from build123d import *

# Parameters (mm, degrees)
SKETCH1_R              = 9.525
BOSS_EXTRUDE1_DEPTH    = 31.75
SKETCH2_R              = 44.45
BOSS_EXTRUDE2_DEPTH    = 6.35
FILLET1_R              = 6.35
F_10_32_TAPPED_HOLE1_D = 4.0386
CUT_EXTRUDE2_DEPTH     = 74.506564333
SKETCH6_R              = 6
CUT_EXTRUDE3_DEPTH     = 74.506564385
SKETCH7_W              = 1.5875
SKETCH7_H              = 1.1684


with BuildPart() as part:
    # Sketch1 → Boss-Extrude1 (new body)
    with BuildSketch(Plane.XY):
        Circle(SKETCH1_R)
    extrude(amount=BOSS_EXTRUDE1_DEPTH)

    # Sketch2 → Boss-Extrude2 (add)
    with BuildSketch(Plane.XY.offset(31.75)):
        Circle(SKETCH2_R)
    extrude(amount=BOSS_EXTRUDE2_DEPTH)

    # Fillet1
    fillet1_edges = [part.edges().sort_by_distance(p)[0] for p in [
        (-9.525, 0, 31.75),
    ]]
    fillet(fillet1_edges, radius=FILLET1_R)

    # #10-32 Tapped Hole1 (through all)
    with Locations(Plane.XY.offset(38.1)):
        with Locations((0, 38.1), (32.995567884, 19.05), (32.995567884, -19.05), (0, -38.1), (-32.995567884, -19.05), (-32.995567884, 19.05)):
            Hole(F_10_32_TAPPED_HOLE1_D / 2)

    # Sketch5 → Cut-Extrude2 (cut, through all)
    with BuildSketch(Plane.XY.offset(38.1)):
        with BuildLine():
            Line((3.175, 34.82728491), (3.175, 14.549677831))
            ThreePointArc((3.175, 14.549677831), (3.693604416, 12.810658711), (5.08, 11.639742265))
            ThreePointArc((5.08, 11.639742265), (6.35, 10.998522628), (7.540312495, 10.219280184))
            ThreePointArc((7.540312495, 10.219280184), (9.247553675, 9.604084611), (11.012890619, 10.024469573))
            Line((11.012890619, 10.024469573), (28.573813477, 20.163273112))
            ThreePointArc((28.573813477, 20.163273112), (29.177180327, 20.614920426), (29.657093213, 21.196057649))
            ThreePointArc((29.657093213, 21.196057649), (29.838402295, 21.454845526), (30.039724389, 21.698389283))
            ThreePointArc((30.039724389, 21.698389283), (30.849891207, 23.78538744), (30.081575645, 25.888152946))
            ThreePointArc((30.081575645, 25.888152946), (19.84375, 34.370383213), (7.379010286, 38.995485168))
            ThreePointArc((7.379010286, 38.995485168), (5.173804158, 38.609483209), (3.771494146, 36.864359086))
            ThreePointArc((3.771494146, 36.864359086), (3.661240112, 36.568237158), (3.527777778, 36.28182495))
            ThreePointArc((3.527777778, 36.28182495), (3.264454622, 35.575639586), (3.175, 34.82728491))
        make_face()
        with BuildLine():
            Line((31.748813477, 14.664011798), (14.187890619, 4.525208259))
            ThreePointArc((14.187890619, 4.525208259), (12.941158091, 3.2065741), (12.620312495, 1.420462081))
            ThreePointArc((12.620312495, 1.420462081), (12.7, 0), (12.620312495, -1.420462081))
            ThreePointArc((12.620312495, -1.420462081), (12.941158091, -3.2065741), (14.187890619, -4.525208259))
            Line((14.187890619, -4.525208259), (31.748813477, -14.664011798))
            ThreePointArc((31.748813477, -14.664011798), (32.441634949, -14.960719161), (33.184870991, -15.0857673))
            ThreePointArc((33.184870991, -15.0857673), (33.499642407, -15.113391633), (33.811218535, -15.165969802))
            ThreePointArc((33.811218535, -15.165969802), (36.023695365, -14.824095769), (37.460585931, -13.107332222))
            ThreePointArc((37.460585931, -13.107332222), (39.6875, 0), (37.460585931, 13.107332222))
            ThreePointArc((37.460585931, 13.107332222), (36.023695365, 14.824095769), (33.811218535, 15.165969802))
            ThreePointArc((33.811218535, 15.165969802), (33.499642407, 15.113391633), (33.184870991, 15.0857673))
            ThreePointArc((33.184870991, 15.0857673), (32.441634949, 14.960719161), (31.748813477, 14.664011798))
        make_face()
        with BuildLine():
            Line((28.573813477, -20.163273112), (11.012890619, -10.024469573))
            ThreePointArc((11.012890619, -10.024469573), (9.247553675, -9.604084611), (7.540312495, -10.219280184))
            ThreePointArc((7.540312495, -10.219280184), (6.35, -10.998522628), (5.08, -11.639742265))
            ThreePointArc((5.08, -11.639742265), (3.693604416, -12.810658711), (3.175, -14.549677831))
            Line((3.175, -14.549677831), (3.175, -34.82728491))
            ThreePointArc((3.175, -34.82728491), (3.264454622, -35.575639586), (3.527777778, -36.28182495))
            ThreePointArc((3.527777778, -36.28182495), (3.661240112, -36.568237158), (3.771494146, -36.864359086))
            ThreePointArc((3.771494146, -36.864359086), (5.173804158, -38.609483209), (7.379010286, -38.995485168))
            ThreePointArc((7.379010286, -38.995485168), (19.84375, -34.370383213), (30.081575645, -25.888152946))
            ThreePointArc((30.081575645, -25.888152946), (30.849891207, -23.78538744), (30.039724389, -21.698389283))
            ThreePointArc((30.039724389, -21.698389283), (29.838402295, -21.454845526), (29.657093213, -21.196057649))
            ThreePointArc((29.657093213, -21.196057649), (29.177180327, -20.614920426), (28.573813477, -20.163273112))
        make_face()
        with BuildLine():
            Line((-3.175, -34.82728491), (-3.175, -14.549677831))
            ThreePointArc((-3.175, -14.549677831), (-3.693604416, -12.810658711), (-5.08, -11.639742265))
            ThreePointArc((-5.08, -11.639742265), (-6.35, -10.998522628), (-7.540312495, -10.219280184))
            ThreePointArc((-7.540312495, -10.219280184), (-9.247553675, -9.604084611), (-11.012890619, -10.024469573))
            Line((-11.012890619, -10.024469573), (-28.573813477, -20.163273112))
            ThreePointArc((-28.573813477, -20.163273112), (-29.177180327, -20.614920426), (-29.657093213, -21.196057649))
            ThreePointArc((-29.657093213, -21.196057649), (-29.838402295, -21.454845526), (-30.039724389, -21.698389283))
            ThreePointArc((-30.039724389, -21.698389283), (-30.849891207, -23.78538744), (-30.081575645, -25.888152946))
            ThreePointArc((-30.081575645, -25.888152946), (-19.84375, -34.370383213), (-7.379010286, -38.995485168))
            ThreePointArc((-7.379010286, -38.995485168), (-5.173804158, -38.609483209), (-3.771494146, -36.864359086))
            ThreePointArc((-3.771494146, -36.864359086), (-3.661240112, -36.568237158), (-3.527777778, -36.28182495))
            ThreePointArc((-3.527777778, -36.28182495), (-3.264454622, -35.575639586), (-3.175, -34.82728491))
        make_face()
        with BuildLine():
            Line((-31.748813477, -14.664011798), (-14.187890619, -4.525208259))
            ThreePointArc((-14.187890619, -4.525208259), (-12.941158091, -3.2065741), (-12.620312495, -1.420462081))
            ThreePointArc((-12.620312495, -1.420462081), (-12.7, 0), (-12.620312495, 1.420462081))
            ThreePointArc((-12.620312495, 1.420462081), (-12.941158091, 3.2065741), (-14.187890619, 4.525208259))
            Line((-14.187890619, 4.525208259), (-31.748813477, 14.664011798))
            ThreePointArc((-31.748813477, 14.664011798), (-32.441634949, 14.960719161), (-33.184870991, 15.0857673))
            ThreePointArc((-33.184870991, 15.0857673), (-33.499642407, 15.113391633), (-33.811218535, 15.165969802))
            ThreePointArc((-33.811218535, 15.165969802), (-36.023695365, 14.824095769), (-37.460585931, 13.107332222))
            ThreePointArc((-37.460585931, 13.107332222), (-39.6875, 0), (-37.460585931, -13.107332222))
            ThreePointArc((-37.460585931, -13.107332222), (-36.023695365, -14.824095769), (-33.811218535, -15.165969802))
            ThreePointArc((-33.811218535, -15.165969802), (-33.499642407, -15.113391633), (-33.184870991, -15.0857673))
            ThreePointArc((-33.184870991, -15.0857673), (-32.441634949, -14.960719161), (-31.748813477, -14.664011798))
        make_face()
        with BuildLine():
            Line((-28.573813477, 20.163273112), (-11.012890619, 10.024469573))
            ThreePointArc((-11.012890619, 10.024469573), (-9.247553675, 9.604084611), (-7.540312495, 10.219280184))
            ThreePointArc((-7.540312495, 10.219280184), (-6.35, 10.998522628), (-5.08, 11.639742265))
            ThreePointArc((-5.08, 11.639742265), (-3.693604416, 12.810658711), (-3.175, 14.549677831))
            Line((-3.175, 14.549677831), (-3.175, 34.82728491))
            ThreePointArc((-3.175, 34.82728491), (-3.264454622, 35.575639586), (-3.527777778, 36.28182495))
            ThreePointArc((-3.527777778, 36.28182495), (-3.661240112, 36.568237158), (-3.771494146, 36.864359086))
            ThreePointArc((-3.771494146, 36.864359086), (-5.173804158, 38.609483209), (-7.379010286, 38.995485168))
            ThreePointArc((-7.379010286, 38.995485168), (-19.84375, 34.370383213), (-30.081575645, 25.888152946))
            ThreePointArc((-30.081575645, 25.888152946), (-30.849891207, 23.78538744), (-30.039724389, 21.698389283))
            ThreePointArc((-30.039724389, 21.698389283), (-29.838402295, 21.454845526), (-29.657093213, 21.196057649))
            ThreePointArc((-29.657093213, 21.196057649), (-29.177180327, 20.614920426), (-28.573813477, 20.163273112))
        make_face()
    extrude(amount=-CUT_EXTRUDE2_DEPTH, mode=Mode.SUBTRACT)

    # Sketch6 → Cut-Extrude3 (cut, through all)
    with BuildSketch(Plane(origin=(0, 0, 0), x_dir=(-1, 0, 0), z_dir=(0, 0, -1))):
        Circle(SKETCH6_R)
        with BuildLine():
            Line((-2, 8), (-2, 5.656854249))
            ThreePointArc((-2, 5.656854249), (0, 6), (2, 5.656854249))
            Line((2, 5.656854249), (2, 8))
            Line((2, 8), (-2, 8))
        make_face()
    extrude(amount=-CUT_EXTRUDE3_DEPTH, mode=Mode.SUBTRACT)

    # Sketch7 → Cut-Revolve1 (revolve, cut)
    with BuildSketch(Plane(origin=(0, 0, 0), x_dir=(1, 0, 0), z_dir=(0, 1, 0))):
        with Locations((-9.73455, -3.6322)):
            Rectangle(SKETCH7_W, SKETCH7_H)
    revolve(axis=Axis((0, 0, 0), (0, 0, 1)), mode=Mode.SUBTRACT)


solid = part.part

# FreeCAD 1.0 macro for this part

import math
import FreeCAD as App
import Part
import Sketcher
Q = App.Units.Quantity


def edges_at(feature, points):
    """Names of the edges that pass closest to the given points."""
    edges = feature.Shape.Edges
    near = lambda p: min(range(len(edges)), key=lambda i: edges[i].distToShape(Part.Vertex(*p))[0])
    return sorted({f"Edge{near(p) + 1}" for p in points})

doc = App.newDocument("Part")
body = doc.addObject("PartDesign::Body", "Body")

# Sketch on XY plane
sketch1 = body.newObject("Sketcher::SketchObject", "Sketch")
sketch1.AttachmentSupport = (doc.getObject("XY_Plane"), [""])
sketch1.MapMode = "FlatFace"
sketch1.addGeometry(Part.Circle(App.Vector(0, 0, 0), App.Vector(0, 0, 1), 9.525), False)
sketch1.addConstraint([
    Sketcher.Constraint("Coincident", 0, 3, -1, 1),
    Sketcher.Constraint("Diameter", 0, Q("0.75 in")),
])
pad1 = body.newObject("PartDesign::Pad", "Pad")
pad1.Profile = sketch1
pad1.Length = Q("1.25 in")

# Sketch on XY plane
sketch2 = body.newObject("Sketcher::SketchObject", "Sketch001")
sketch2.AttachmentSupport = (doc.getObject("XY_Plane"), [""])
sketch2.MapMode = "FlatFace"
sketch2.AttachmentOffset = App.Placement(App.Vector(0, 0, 1.25 * 25.4), App.Rotation())
sketch2.addGeometry(Part.Circle(App.Vector(0, 0, 0), App.Vector(0, 0, 1), 44.45), False)
sketch2.addConstraint([
    Sketcher.Constraint("Coincident", 0, 3, -1, 1),
    Sketcher.Constraint("Diameter", 0, Q("3.5 in")),
])
pad2 = body.newObject("PartDesign::Pad", "Pad001")
pad2.Profile = sketch2
pad2.Length = Q("0.25 in")
doc.recompute()

fillet = body.newObject("PartDesign::Fillet", "Fillet")
fillet.Base = (pad2, edges_at(pad2, [(-9.525, 0, 31.75)]))
fillet.Radius = Q("0.25 in")

# Sketch on XY plane
sketch3 = body.newObject("Sketcher::SketchObject", "Sketch002")
sketch3.AttachmentSupport = (doc.getObject("XY_Plane"), [""])
sketch3.MapMode = "FlatFace"
sketch3.AttachmentOffset = App.Placement(App.Vector(0, 0, 1.5 * 25.4), App.Rotation())
sketch3.addGeometry([
    Part.Circle(App.Vector(0, 38.1, 0), App.Vector(0, 0, 1), 2.0193),  # 0
    Part.Circle(App.Vector(32.995568, 19.05, 0), App.Vector(0, 0, 1), 2.0193),  # 1
    Part.Circle(App.Vector(32.995568, -19.05, 0), App.Vector(0, 0, 1), 2.0193),  # 2
    Part.Circle(App.Vector(0, -38.1, 0), App.Vector(0, 0, 1), 2.0193),  # 3
    Part.Circle(App.Vector(-32.995568, -19.05, 0), App.Vector(0, 0, 1), 2.0193),  # 4
    Part.Circle(App.Vector(-32.995568, 19.05, 0), App.Vector(0, 0, 1), 2.0193),  # 5
], False)
sketch3.addConstraint([
    Sketcher.Constraint("Equal", 0, 1),
    Sketcher.Constraint("Equal", 1, 2),
    Sketcher.Constraint("Equal", 2, 3),
    Sketcher.Constraint("Equal", 3, 4),
    Sketcher.Constraint("Equal", 4, 5),
    Sketcher.Constraint("Symmetric", 0, 3, 3, 3, -1, 1),
    Sketcher.Constraint("Symmetric", 1, 3, 4, 3, -1, 1),
    Sketcher.Constraint("Symmetric", 2, 3, 5, 3, -1, 1),
    Sketcher.Constraint("Symmetric", 2, 3, 4, 3, -2),
    Sketcher.Constraint("PointOnObject", 0, 3, -2),
    Sketcher.Constraint("Diameter", 0, Q("0.159 in")),
    Sketcher.Constraint("DistanceY", 3, 3, 0, 3, Q("3 in")),
    Sketcher.Constraint("DistanceY", 2, 3, 1, 3, Q("1.5 in")),
    Sketcher.Constraint("DistanceX", -1, 1, 1, 3, 32.995568),
])
doc.recompute()
hole = body.newObject("PartDesign::Hole", "Hole")
hole.Profile = sketch3
hole.ThreadType = "None"
hole.Diameter = Q("0.159 in")
hole.DepthType = "ThroughAll"

# Sketch on XY plane
sketch4 = body.newObject("Sketcher::SketchObject", "Sketch003")
sketch4.AttachmentSupport = (doc.getObject("XY_Plane"), [""])
sketch4.MapMode = "FlatFace"
sketch4.AttachmentOffset = App.Placement(App.Vector(0, 0, 1.5 * 25.4), App.Rotation())
sketch4.addGeometry([
    Part.LineSegment(App.Vector(3.175, 34.827285, 0), App.Vector(3.175, 14.549678, 0)),  # 0
    Part.ArcOfCircle(Part.Circle(App.Vector(6.35, 14.549678, 0), App.Vector(0, 0, 1), 3.175), math.radians(-180), math.radians(-113.578178)),  # 1
    Part.ArcOfCircle(Part.Circle(App.Vector(0, 0, 0), App.Vector(0, 0, 1), 12.7), math.radians(53.578178), math.radians(66.421822)),  # 2
    Part.ArcOfCircle(Part.Circle(App.Vector(9.425391, 12.7741, 0), App.Vector(0, 0, 1), 3.175), math.radians(-126.421822), math.radians(-60)),  # 3
    Part.LineSegment(App.Vector(11.012891, 10.02447, 0), App.Vector(28.573813, 20.163273, 0)),  # 4
    Part.ArcOfCircle(Part.Circle(App.Vector(26.986313, 22.912904, 0), App.Vector(0, 0, 1), 3.175), math.radians(-60), math.radians(-32.733956)),  # 5
    Part.ArcOfCircle(Part.Circle(App.Vector(32.995568, 19.05, 0), App.Vector(0, 0, 1), 3.96875), math.radians(138.14016), math.radians(147.266044)),  # 6
    Part.ArcOfCircle(Part.Circle(App.Vector(27.67505, 23.817101, 0), App.Vector(0, 0, 1), 3.175), math.radians(-41.85984), math.radians(40.715231)),  # 7
    Part.ArcOfCircle(Part.Circle(App.Vector(0, 0, 0), App.Vector(0, 0, 1), 39.6875), math.radians(40.715231), math.radians(79.284769)),  # 8
    Part.ArcOfCircle(Part.Circle(App.Vector(6.788689, 35.875846, 0), App.Vector(0, 0, 1), 3.175), math.radians(79.284769), math.radians(161.85984)),  # 9
    Part.ArcOfCircle(Part.Circle(App.Vector(0, 38.1, 0), App.Vector(0, 0, 1), 3.96875), math.radians(-27.266044), math.radians(-18.14016)),  # 10
    Part.ArcOfCircle(Part.Circle(App.Vector(6.35, 34.827285, 0), App.Vector(0, 0, 1), 3.175), math.radians(152.733956), math.radians(180)),  # 11
    Part.LineSegment(App.Vector(31.748813, 14.664012, 0), App.Vector(14.187891, 4.525208, 0)),  # 12
    Part.ArcOfCircle(Part.Circle(App.Vector(15.775391, 1.775578, 0), App.Vector(0, 0, 1), 3.175), math.radians(120), math.radians(186.421822)),  # 13
    Part.ArcOfCircle(Part.Circle(App.Vector(0, 0, 0), App.Vector(0, 0, 1), 12.7), math.radians(-6.421822), math.radians(6.421822)),  # 14
    Part.ArcOfCircle(Part.Circle(App.Vector(15.775391, -1.775578, 0), App.Vector(0, 0, 1), 3.175), math.radians(173.578178), math.radians(240)),  # 15
    Part.LineSegment(App.Vector(14.187891, -4.525208, 0), App.Vector(31.748813, -14.664012, 0)),  # 16
    Part.ArcOfCircle(Part.Circle(App.Vector(33.336313, -11.914381, 0), App.Vector(0, 0, 1), 3.175), math.radians(-120), math.radians(-92.733955)),  # 17
    Part.ArcOfCircle(Part.Circle(App.Vector(32.995568, -19.05, 0), App.Vector(0, 0, 1), 3.96875), math.radians(78.14016), math.radians(87.266044)),  # 18
    Part.ArcOfCircle(Part.Circle(App.Vector(34.463739, -12.058746, 0), App.Vector(0, 0, 1), 3.175), math.radians(-101.85984), math.radians(-19.284769)),  # 19
    Part.ArcOfCircle(Part.Circle(App.Vector(0, 0, 0), App.Vector(0, 0, 1), 39.6875), math.radians(-19.284769), math.radians(19.284769)),  # 20
    Part.ArcOfCircle(Part.Circle(App.Vector(34.463739, 12.058746, 0), App.Vector(0, 0, 1), 3.175), math.radians(19.284769), math.radians(101.85984)),  # 21
    Part.ArcOfCircle(Part.Circle(App.Vector(32.995568, 19.05, 0), App.Vector(0, 0, 1), 3.96875), math.radians(-87.266044), math.radians(-78.14016)),  # 22
    Part.ArcOfCircle(Part.Circle(App.Vector(33.336313, 11.914381, 0), App.Vector(0, 0, 1), 3.175), math.radians(92.733955), math.radians(120)),  # 23
    Part.LineSegment(App.Vector(28.573813, -20.163273, 0), App.Vector(11.012891, -10.02447, 0)),  # 24
    Part.ArcOfCircle(Part.Circle(App.Vector(9.425391, -12.7741, 0), App.Vector(0, 0, 1), 3.175), math.radians(60), math.radians(126.421822)),  # 25
    Part.ArcOfCircle(Part.Circle(App.Vector(0, 0, 0), App.Vector(0, 0, 1), 12.7), math.radians(-66.421822), math.radians(-53.578178)),  # 26
    Part.ArcOfCircle(Part.Circle(App.Vector(6.35, -14.549678, 0), App.Vector(0, 0, 1), 3.175), math.radians(113.578178), math.radians(180)),  # 27
    Part.LineSegment(App.Vector(3.175, -14.549678, 0), App.Vector(3.175, -34.827285, 0)),  # 28
    Part.ArcOfCircle(Part.Circle(App.Vector(6.35, -34.827285, 0), App.Vector(0, 0, 1), 3.175), math.radians(180), math.radians(207.266044)),  # 29
    Part.ArcOfCircle(Part.Circle(App.Vector(0, -38.1, 0), App.Vector(0, 0, 1), 3.96875), math.radians(18.14016), math.radians(27.266044)),  # 30
    Part.ArcOfCircle(Part.Circle(App.Vector(6.788689, -35.875846, 0), App.Vector(0, 0, 1), 3.175), math.radians(-161.85984), math.radians(-79.284769)),  # 31
    Part.ArcOfCircle(Part.Circle(App.Vector(0, 0, 0), App.Vector(0, 0, 1), 39.6875), math.radians(-79.284769), math.radians(-40.715231)),  # 32
    Part.ArcOfCircle(Part.Circle(App.Vector(27.67505, -23.817101, 0), App.Vector(0, 0, 1), 3.175), math.radians(-40.715231), math.radians(41.85984)),  # 33
    Part.ArcOfCircle(Part.Circle(App.Vector(32.995568, -19.05, 0), App.Vector(0, 0, 1), 3.96875), math.radians(-147.266044), math.radians(-138.14016)),  # 34
    Part.ArcOfCircle(Part.Circle(App.Vector(26.986313, -22.912904, 0), App.Vector(0, 0, 1), 3.175), math.radians(32.733956), math.radians(60)),  # 35
    Part.LineSegment(App.Vector(-3.175, -34.827285, 0), App.Vector(-3.175, -14.549678, 0)),  # 36
    Part.ArcOfCircle(Part.Circle(App.Vector(-6.35, -14.549678, 0), App.Vector(0, 0, 1), 3.175), math.radians(0), math.radians(66.421822)),  # 37
    Part.ArcOfCircle(Part.Circle(App.Vector(0, 0, 0), App.Vector(0, 0, 1), 12.7), math.radians(-126.421822), math.radians(-113.578178)),  # 38
    Part.ArcOfCircle(Part.Circle(App.Vector(-9.425391, -12.7741, 0), App.Vector(0, 0, 1), 3.175), math.radians(53.578178), math.radians(120)),  # 39
    Part.LineSegment(App.Vector(-11.012891, -10.02447, 0), App.Vector(-28.573813, -20.163273, 0)),  # 40
    Part.ArcOfCircle(Part.Circle(App.Vector(-26.986313, -22.912904, 0), App.Vector(0, 0, 1), 3.175), math.radians(120), math.radians(147.266044)),  # 41
    Part.ArcOfCircle(Part.Circle(App.Vector(-32.995568, -19.05, 0), App.Vector(0, 0, 1), 3.96875), math.radians(-41.85984), math.radians(-32.733956)),  # 42
    Part.ArcOfCircle(Part.Circle(App.Vector(-27.67505, -23.817101, 0), App.Vector(0, 0, 1), 3.175), math.radians(138.14016), math.radians(220.715231)),  # 43
    Part.ArcOfCircle(Part.Circle(App.Vector(0, 0, 0), App.Vector(0, 0, 1), 39.6875), math.radians(-139.284769), math.radians(-100.715231)),  # 44
    Part.ArcOfCircle(Part.Circle(App.Vector(-6.788689, -35.875846, 0), App.Vector(0, 0, 1), 3.175), math.radians(-100.715231), math.radians(-18.14016)),  # 45
    Part.ArcOfCircle(Part.Circle(App.Vector(0, -38.1, 0), App.Vector(0, 0, 1), 3.96875), math.radians(152.733956), math.radians(161.85984)),  # 46
    Part.ArcOfCircle(Part.Circle(App.Vector(-6.35, -34.827285, 0), App.Vector(0, 0, 1), 3.175), math.radians(-27.266044), math.radians(0)),  # 47
    Part.LineSegment(App.Vector(-31.748813, -14.664012, 0), App.Vector(-14.187891, -4.525208, 0)),  # 48
    Part.ArcOfCircle(Part.Circle(App.Vector(-15.775391, -1.775578, 0), App.Vector(0, 0, 1), 3.175), math.radians(-60), math.radians(6.421822)),  # 49
    Part.ArcOfCircle(Part.Circle(App.Vector(0, 0, 0), App.Vector(0, 0, 1), 12.7), math.radians(173.578178), math.radians(186.421822)),  # 50
    Part.ArcOfCircle(Part.Circle(App.Vector(-15.775391, 1.775578, 0), App.Vector(0, 0, 1), 3.175), math.radians(-6.421822), math.radians(60)),  # 51
    Part.LineSegment(App.Vector(-14.187891, 4.525208, 0), App.Vector(-31.748813, 14.664012, 0)),  # 52
    Part.ArcOfCircle(Part.Circle(App.Vector(-33.336313, 11.914381, 0), App.Vector(0, 0, 1), 3.175), math.radians(60), math.radians(87.266045)),  # 53
    Part.ArcOfCircle(Part.Circle(App.Vector(-32.995568, 19.05, 0), App.Vector(0, 0, 1), 3.96875), math.radians(-101.85984), math.radians(-92.733956)),  # 54
    Part.ArcOfCircle(Part.Circle(App.Vector(-34.463739, 12.058746, 0), App.Vector(0, 0, 1), 3.175), math.radians(78.14016), math.radians(160.715231)),  # 55
    Part.ArcOfCircle(Part.Circle(App.Vector(0, 0, 0), App.Vector(0, 0, 1), 39.6875), math.radians(160.715231), math.radians(199.284769)),  # 56
    Part.ArcOfCircle(Part.Circle(App.Vector(-34.463739, -12.058746, 0), App.Vector(0, 0, 1), 3.175), math.radians(-160.715231), math.radians(-78.14016)),  # 57
    Part.ArcOfCircle(Part.Circle(App.Vector(-32.995568, -19.05, 0), App.Vector(0, 0, 1), 3.96875), math.radians(92.733956), math.radians(101.85984)),  # 58
    Part.ArcOfCircle(Part.Circle(App.Vector(-33.336313, -11.914381, 0), App.Vector(0, 0, 1), 3.175), math.radians(-87.266045), math.radians(-60)),  # 59
    Part.LineSegment(App.Vector(-28.573813, 20.163273, 0), App.Vector(-11.012891, 10.02447, 0)),  # 60
    Part.ArcOfCircle(Part.Circle(App.Vector(-9.425391, 12.7741, 0), App.Vector(0, 0, 1), 3.175), math.radians(-120), math.radians(-53.578178)),  # 61
    Part.ArcOfCircle(Part.Circle(App.Vector(0, 0, 0), App.Vector(0, 0, 1), 12.7), math.radians(113.578178), math.radians(126.421822)),  # 62
    Part.ArcOfCircle(Part.Circle(App.Vector(-6.35, 14.549678, 0), App.Vector(0, 0, 1), 3.175), math.radians(-66.421822), math.radians(0)),  # 63
    Part.LineSegment(App.Vector(-3.175, 14.549678, 0), App.Vector(-3.175, 34.827285, 0)),  # 64
    Part.ArcOfCircle(Part.Circle(App.Vector(-6.35, 34.827285, 0), App.Vector(0, 0, 1), 3.175), math.radians(0), math.radians(27.266044)),  # 65
    Part.ArcOfCircle(Part.Circle(App.Vector(0, 38.1, 0), App.Vector(0, 0, 1), 3.96875), math.radians(-161.85984), math.radians(-152.733956)),  # 66
    Part.ArcOfCircle(Part.Circle(App.Vector(-6.788689, 35.875846, 0), App.Vector(0, 0, 1), 3.175), math.radians(18.14016), math.radians(100.715231)),  # 67
    Part.ArcOfCircle(Part.Circle(App.Vector(0, 0, 0), App.Vector(0, 0, 1), 39.6875), math.radians(100.715231), math.radians(139.284769)),  # 68
    Part.ArcOfCircle(Part.Circle(App.Vector(-27.67505, 23.817101, 0), App.Vector(0, 0, 1), 3.175), math.radians(139.284769), math.radians(221.85984)),  # 69
    Part.ArcOfCircle(Part.Circle(App.Vector(-32.995568, 19.05, 0), App.Vector(0, 0, 1), 3.96875), math.radians(32.733956), math.radians(41.85984)),  # 70
    Part.ArcOfCircle(Part.Circle(App.Vector(-26.986313, 22.912904, 0), App.Vector(0, 0, 1), 3.175), math.radians(-147.266044), math.radians(-120)),  # 71
], False)
sketch4.addConstraint([
    Sketcher.Constraint("Tangent", 0, 2, 1, 1),
    Sketcher.Constraint("Tangent", 1, 2, 2, 2),
    Sketcher.Constraint("Tangent", 2, 1, 3, 1),
    Sketcher.Constraint("Tangent", 3, 2, 4, 1),
    Sketcher.Constraint("Tangent", 4, 2, 5, 1),
    Sketcher.Constraint("Tangent", 5, 2, 6, 2),
    Sketcher.Constraint("Tangent", 6, 1, 7, 1),
    Sketcher.Constraint("Tangent", 7, 2, 8, 1),
    Sketcher.Constraint("Tangent", 8, 2, 9, 1),
    Sketcher.Constraint("Tangent", 9, 2, 10, 2),
    Sketcher.Constraint("Tangent", 10, 1, 11, 1),
    Sketcher.Constraint("Tangent", 11, 2, 0, 1),
    Sketcher.Constraint("Tangent", 12, 2, 13, 1),
    Sketcher.Constraint("Tangent", 13, 2, 14, 2),
    Sketcher.Constraint("Tangent", 14, 1, 15, 1),
    Sketcher.Constraint("Tangent", 15, 2, 16, 1),
    Sketcher.Constraint("Tangent", 16, 2, 17, 1),
    Sketcher.Constraint("Tangent", 17, 2, 18, 2),
    Sketcher.Constraint("Tangent", 18, 1, 19, 1),
    Sketcher.Constraint("Tangent", 19, 2, 20, 1),
    Sketcher.Constraint("Tangent", 20, 2, 21, 1),
    Sketcher.Constraint("Tangent", 21, 2, 22, 2),
    Sketcher.Constraint("Tangent", 22, 1, 23, 1),
    Sketcher.Constraint("Tangent", 23, 2, 12, 1),
    Sketcher.Constraint("Tangent", 24, 2, 25, 1),
    Sketcher.Constraint("Tangent", 25, 2, 26, 2),
    Sketcher.Constraint("Tangent", 26, 1, 27, 1),
    Sketcher.Constraint("Tangent", 27, 2, 28, 1),
    Sketcher.Constraint("Tangent", 28, 2, 29, 1),
    Sketcher.Constraint("Tangent", 29, 2, 30, 2),
    Sketcher.Constraint("Tangent", 30, 1, 31, 1),
    Sketcher.Constraint("Tangent", 31, 2, 32, 1),
    Sketcher.Constraint("Tangent", 32, 2, 33, 1),
    Sketcher.Constraint("Tangent", 33, 2, 34, 2),
    Sketcher.Constraint("Tangent", 34, 1, 35, 1),
    Sketcher.Constraint("Tangent", 35, 2, 24, 1),
    Sketcher.Constraint("Tangent", 36, 2, 37, 1),
    Sketcher.Constraint("Tangent", 37, 2, 38, 2),
    Sketcher.Constraint("Tangent", 38, 1, 39, 1),
    Sketcher.Constraint("Tangent", 39, 2, 40, 1),
    Sketcher.Constraint("Tangent", 40, 2, 41, 1),
    Sketcher.Constraint("Tangent", 41, 2, 42, 2),
    Sketcher.Constraint("Tangent", 42, 1, 43, 1),
    Sketcher.Constraint("Tangent", 43, 2, 44, 1),
    Sketcher.Constraint("Tangent", 44, 2, 45, 1),
    Sketcher.Constraint("Tangent", 45, 2, 46, 2),
    Sketcher.Constraint("Tangent", 46, 1, 47, 1),
    Sketcher.Constraint("Tangent", 47, 2, 36, 1),
    Sketcher.Constraint("Tangent", 48, 2, 49, 1),
    Sketcher.Constraint("Tangent", 49, 2, 50, 2),
    Sketcher.Constraint("Tangent", 50, 1, 51, 1),
    Sketcher.Constraint("Tangent", 51, 2, 52, 1),
    Sketcher.Constraint("Tangent", 52, 2, 53, 1),
    Sketcher.Constraint("Tangent", 53, 2, 54, 2),
    Sketcher.Constraint("Tangent", 54, 1, 55, 1),
    Sketcher.Constraint("Tangent", 55, 2, 56, 1),
    Sketcher.Constraint("Tangent", 56, 2, 57, 1),
    Sketcher.Constraint("Tangent", 57, 2, 58, 2),
    Sketcher.Constraint("Tangent", 58, 1, 59, 1),
    Sketcher.Constraint("Tangent", 59, 2, 48, 1),
    Sketcher.Constraint("Tangent", 60, 2, 61, 1),
    Sketcher.Constraint("Tangent", 61, 2, 62, 2),
    Sketcher.Constraint("Tangent", 62, 1, 63, 1),
    Sketcher.Constraint("Tangent", 63, 2, 64, 1),
    Sketcher.Constraint("Tangent", 64, 2, 65, 1),
    Sketcher.Constraint("Tangent", 65, 2, 66, 2),
    Sketcher.Constraint("Tangent", 66, 1, 67, 1),
    Sketcher.Constraint("Tangent", 67, 2, 68, 1),
    Sketcher.Constraint("Tangent", 68, 2, 69, 1),
    Sketcher.Constraint("Tangent", 69, 2, 70, 2),
    Sketcher.Constraint("Tangent", 70, 1, 71, 1),
    Sketcher.Constraint("Tangent", 71, 2, 60, 1),
    Sketcher.Constraint("Vertical", 0),
    Sketcher.Constraint("Vertical", 28),
    Sketcher.Constraint("Vertical", 36),
    Sketcher.Constraint("Vertical", 64),
    Sketcher.Constraint("Coincident", 2, 3, -1, 1),
    Sketcher.Constraint("Coincident", 8, 3, -1, 1),
    Sketcher.Constraint("Coincident", 14, 3, -1, 1),
    Sketcher.Constraint("Coincident", 20, 3, -1, 1),
    Sketcher.Constraint("Coincident", 26, 3, -1, 1),
    Sketcher.Constraint("Coincident", 32, 3, -1, 1),
    Sketcher.Constraint("Coincident", 38, 3, -1, 1),
    Sketcher.Constraint("Coincident", 44, 3, -1, 1),
    Sketcher.Constraint("Coincident", 50, 3, -1, 1),
    Sketcher.Constraint("Coincident", 56, 3, -1, 1),
    Sketcher.Constraint("Coincident", 62, 3, -1, 1),
    Sketcher.Constraint("Coincident", 68, 3, -1, 1),
    Sketcher.Constraint("Coincident", 22, 3, 6, 3),
    Sketcher.Constraint("Coincident", 34, 3, 18, 3),
    Sketcher.Constraint("Coincident", 46, 3, 30, 3),
    Sketcher.Constraint("Coincident", 58, 3, 42, 3),
    Sketcher.Constraint("Coincident", 66, 3, 10, 3),
    Sketcher.Constraint("Coincident", 70, 3, 54, 3),
    Sketcher.Constraint("Equal", 1, 3),
    Sketcher.Constraint("Equal", 3, 5),
    Sketcher.Constraint("Equal", 5, 7),
    Sketcher.Constraint("Equal", 7, 9),
    Sketcher.Constraint("Equal", 6, 10),
    Sketcher.Constraint("Equal", 9, 11),
    Sketcher.Constraint("Equal", 11, 13),
    Sketcher.Constraint("Equal", 2, 14),
    Sketcher.Constraint("Equal", 13, 15),
    Sketcher.Constraint("Equal", 15, 17),
    Sketcher.Constraint("Equal", 10, 18),
    Sketcher.Constraint("Equal", 17, 19),
    Sketcher.Constraint("Equal", 8, 20),
    Sketcher.Constraint("Equal", 19, 21),
    Sketcher.Constraint("Equal", 18, 22),
    Sketcher.Constraint("Equal", 21, 23),
    Sketcher.Constraint("Equal", 23, 25),
    Sketcher.Constraint("Equal", 14, 26),
    Sketcher.Constraint("Equal", 25, 27),
    Sketcher.Constraint("Equal", 27, 29),
    Sketcher.Constraint("Equal", 22, 30),
    Sketcher.Constraint("Equal", 29, 31),
    Sketcher.Constraint("Equal", 20, 32),
    Sketcher.Constraint("Equal", 31, 33),
    Sketcher.Constraint("Equal", 30, 34),
    Sketcher.Constraint("Equal", 33, 35),
    Sketcher.Constraint("Equal", 35, 37),
    Sketcher.Constraint("Equal", 26, 38),
    Sketcher.Constraint("Equal", 37, 39),
    Sketcher.Constraint("Equal", 39, 41),
    Sketcher.Constraint("Equal", 34, 42),
    Sketcher.Constraint("Equal", 41, 43),
    Sketcher.Constraint("Equal", 32, 44),
    Sketcher.Constraint("Equal", 43, 45),
    Sketcher.Constraint("Equal", 42, 46),
    Sketcher.Constraint("Equal", 45, 47),
    Sketcher.Constraint("Equal", 47, 49),
    Sketcher.Constraint("Equal", 38, 50),
    Sketcher.Constraint("Equal", 49, 51),
    Sketcher.Constraint("Equal", 51, 53),
    Sketcher.Constraint("Equal", 46, 54),
    Sketcher.Constraint("Equal", 53, 55),
    Sketcher.Constraint("Equal", 44, 56),
    Sketcher.Constraint("Equal", 55, 57),
    Sketcher.Constraint("Equal", 54, 58),
    Sketcher.Constraint("Equal", 57, 59),
    Sketcher.Constraint("Equal", 59, 61),
    Sketcher.Constraint("Equal", 50, 62),
    Sketcher.Constraint("Equal", 61, 63),
    Sketcher.Constraint("Equal", 63, 65),
    Sketcher.Constraint("Equal", 58, 66),
    Sketcher.Constraint("Equal", 65, 67),
    Sketcher.Constraint("Equal", 56, 68),
    Sketcher.Constraint("Equal", 67, 69),
    Sketcher.Constraint("Equal", 66, 70),
    Sketcher.Constraint("Equal", 69, 71),
    Sketcher.Constraint("Symmetric", 10, 3, 30, 3, -1, 1),
    Sketcher.Constraint("Symmetric", 5, 3, 41, 3, -1, 1),
    Sketcher.Constraint("Symmetric", 17, 3, 53, 3, -1, 1),
    Sketcher.Constraint("Symmetric", 23, 3, 59, 3, -1, 1),
    Sketcher.Constraint("Symmetric", 35, 3, 71, 3, -1, 1),
    Sketcher.Constraint("Symmetric", 35, 3, 41, 3, -2),
    Sketcher.Constraint("Symmetric", 29, 3, 47, 3, -2),
    Sketcher.Constraint("Symmetric", 23, 3, 53, 3, -2),
    Sketcher.Constraint("Parallel", 4, 12),
    Sketcher.Constraint("Parallel", 16, 24),
    Sketcher.Constraint("Parallel", 12, 40),
    Sketcher.Constraint("Parallel", 40, 48),
    Sketcher.Constraint("Parallel", 24, 52),
    Sketcher.Constraint("Parallel", 52, 60),
    Sketcher.Constraint("Horizontal", 25, 3, 39, 3),
    Sketcher.Constraint("Horizontal", 1, 3, 63, 3),
    Sketcher.Constraint("Vertical", 11, 3, 27, 3),
    Sketcher.Constraint("Equal", 4, 12),
    Sketcher.Constraint("Radius", 2, Q("0.5 in")),
    Sketcher.Constraint("Angle", 4, Q("30 deg")),
    Sketcher.Constraint("Radius", 1, Q("0.125 in")),
    Sketcher.Constraint("Radius", 6, Q("0.15625 in")),
    Sketcher.Constraint("Radius", 8, Q("1.5625 in")),
    Sketcher.Constraint("DistanceY", -1, 1, 10, 3, Q("1.5 in")),
    Sketcher.Constraint("DistanceX", -1, 1, 1, 2, Q("0.2 in")),
    Sketcher.Constraint("DistanceY", -1, 1, 6, 3, Q("0.75 in")),
    Sketcher.Constraint("DistanceY", -1, 1, 3, 3, 12.7741),
    Sketcher.Constraint("DistanceY", -1, 1, 7, 3, 23.817101),
])
pocket1 = body.newObject("PartDesign::Pocket", "Pocket")
pocket1.Profile = sketch4
pocket1.Type = "ThroughAll"

# Sketch on XY plane
sketch5 = body.newObject("Sketcher::SketchObject", "Sketch004")
sketch5.AttachmentSupport = (doc.getObject("XY_Plane"), [""])
sketch5.MapMode = "FlatFace"
sketch5.addGeometry([
    Part.LineSegment(App.Vector(-2, 5.656854, 0), App.Vector(-2, 8, 0)),
    Part.LineSegment(App.Vector(-2, 8, 0), App.Vector(2, 8, 0)),
    Part.LineSegment(App.Vector(2, 8, 0), App.Vector(2, 5.656854, 0)),
    Part.ArcOfCircle(Part.Circle(App.Vector(0, 0, 0), App.Vector(0, 0, 1), 6), math.radians(109.471221), math.radians(430.528779)),
], False)
sketch5.addConstraint([
    Sketcher.Constraint("Coincident", 0, 2, 1, 1),
    Sketcher.Constraint("Coincident", 1, 2, 2, 1),
    Sketcher.Constraint("Coincident", 2, 2, 3, 2),
    Sketcher.Constraint("Coincident", 3, 1, 0, 1),
    Sketcher.Constraint("Vertical", 0),
    Sketcher.Constraint("Horizontal", 1),
    Sketcher.Constraint("Vertical", 2),
    Sketcher.Constraint("Coincident", 3, 3, -1, 1),
    Sketcher.Constraint("Horizontal", 2, 2, 3, 1),
    Sketcher.Constraint("Radius", 3, 6.0),
    Sketcher.Constraint("DistanceX", 1, 1, 1, 2, 4.0),
    Sketcher.Constraint("DistanceY", -1, 1, 0, 2, 8.0),
])
pocket2 = body.newObject("PartDesign::Pocket", "Pocket001")
pocket2.Profile = sketch5
pocket2.Type = "ThroughAll"
pocket2.Reversed = True

# Sketch on XZ plane
sketch6 = body.newObject("Sketcher::SketchObject", "Sketch005")
sketch6.AttachmentSupport = (doc.getObject("XZ_Plane"), [""])
sketch6.MapMode = "FlatFace"
sketch6.addGeometry([
    Part.LineSegment(App.Vector(-10.5283, 3.048, 0), App.Vector(-10.5283, 4.2164, 0)),
    Part.LineSegment(App.Vector(-10.5283, 4.2164, 0), App.Vector(-8.9408, 4.2164, 0)),
    Part.LineSegment(App.Vector(-8.9408, 4.2164, 0), App.Vector(-8.9408, 3.048, 0)),
    Part.LineSegment(App.Vector(-8.9408, 3.048, 0), App.Vector(-10.5283, 3.048, 0)),
], False)
sketch6.addConstraint([
    Sketcher.Constraint("Coincident", 0, 2, 1, 1),
    Sketcher.Constraint("Coincident", 1, 2, 2, 1),
    Sketcher.Constraint("Coincident", 2, 2, 3, 1),
    Sketcher.Constraint("Coincident", 3, 2, 0, 1),
    Sketcher.Constraint("Vertical", 0),
    Sketcher.Constraint("Horizontal", 1),
    Sketcher.Constraint("Vertical", 2),
    Sketcher.Constraint("Horizontal", 3),
    Sketcher.Constraint("DistanceX", 1, 1, 1, 2, Q("0.0625 in")),
    Sketcher.Constraint("DistanceY", 0, 1, 0, 2, Q("0.046 in")),
    Sketcher.Constraint("DistanceY", -1, 1, 2, 2, Q("0.12 in")),
    Sketcher.Constraint("DistanceX", 1, 2, -1, 1, Q("0.352 in")),
])
groove = body.newObject("PartDesign::Groove", "Groove")
groove.Profile = sketch6
groove.ReferenceAxis = (sketch6, ["V_Axis"])
groove.Angle = 360

doc.recompute()
